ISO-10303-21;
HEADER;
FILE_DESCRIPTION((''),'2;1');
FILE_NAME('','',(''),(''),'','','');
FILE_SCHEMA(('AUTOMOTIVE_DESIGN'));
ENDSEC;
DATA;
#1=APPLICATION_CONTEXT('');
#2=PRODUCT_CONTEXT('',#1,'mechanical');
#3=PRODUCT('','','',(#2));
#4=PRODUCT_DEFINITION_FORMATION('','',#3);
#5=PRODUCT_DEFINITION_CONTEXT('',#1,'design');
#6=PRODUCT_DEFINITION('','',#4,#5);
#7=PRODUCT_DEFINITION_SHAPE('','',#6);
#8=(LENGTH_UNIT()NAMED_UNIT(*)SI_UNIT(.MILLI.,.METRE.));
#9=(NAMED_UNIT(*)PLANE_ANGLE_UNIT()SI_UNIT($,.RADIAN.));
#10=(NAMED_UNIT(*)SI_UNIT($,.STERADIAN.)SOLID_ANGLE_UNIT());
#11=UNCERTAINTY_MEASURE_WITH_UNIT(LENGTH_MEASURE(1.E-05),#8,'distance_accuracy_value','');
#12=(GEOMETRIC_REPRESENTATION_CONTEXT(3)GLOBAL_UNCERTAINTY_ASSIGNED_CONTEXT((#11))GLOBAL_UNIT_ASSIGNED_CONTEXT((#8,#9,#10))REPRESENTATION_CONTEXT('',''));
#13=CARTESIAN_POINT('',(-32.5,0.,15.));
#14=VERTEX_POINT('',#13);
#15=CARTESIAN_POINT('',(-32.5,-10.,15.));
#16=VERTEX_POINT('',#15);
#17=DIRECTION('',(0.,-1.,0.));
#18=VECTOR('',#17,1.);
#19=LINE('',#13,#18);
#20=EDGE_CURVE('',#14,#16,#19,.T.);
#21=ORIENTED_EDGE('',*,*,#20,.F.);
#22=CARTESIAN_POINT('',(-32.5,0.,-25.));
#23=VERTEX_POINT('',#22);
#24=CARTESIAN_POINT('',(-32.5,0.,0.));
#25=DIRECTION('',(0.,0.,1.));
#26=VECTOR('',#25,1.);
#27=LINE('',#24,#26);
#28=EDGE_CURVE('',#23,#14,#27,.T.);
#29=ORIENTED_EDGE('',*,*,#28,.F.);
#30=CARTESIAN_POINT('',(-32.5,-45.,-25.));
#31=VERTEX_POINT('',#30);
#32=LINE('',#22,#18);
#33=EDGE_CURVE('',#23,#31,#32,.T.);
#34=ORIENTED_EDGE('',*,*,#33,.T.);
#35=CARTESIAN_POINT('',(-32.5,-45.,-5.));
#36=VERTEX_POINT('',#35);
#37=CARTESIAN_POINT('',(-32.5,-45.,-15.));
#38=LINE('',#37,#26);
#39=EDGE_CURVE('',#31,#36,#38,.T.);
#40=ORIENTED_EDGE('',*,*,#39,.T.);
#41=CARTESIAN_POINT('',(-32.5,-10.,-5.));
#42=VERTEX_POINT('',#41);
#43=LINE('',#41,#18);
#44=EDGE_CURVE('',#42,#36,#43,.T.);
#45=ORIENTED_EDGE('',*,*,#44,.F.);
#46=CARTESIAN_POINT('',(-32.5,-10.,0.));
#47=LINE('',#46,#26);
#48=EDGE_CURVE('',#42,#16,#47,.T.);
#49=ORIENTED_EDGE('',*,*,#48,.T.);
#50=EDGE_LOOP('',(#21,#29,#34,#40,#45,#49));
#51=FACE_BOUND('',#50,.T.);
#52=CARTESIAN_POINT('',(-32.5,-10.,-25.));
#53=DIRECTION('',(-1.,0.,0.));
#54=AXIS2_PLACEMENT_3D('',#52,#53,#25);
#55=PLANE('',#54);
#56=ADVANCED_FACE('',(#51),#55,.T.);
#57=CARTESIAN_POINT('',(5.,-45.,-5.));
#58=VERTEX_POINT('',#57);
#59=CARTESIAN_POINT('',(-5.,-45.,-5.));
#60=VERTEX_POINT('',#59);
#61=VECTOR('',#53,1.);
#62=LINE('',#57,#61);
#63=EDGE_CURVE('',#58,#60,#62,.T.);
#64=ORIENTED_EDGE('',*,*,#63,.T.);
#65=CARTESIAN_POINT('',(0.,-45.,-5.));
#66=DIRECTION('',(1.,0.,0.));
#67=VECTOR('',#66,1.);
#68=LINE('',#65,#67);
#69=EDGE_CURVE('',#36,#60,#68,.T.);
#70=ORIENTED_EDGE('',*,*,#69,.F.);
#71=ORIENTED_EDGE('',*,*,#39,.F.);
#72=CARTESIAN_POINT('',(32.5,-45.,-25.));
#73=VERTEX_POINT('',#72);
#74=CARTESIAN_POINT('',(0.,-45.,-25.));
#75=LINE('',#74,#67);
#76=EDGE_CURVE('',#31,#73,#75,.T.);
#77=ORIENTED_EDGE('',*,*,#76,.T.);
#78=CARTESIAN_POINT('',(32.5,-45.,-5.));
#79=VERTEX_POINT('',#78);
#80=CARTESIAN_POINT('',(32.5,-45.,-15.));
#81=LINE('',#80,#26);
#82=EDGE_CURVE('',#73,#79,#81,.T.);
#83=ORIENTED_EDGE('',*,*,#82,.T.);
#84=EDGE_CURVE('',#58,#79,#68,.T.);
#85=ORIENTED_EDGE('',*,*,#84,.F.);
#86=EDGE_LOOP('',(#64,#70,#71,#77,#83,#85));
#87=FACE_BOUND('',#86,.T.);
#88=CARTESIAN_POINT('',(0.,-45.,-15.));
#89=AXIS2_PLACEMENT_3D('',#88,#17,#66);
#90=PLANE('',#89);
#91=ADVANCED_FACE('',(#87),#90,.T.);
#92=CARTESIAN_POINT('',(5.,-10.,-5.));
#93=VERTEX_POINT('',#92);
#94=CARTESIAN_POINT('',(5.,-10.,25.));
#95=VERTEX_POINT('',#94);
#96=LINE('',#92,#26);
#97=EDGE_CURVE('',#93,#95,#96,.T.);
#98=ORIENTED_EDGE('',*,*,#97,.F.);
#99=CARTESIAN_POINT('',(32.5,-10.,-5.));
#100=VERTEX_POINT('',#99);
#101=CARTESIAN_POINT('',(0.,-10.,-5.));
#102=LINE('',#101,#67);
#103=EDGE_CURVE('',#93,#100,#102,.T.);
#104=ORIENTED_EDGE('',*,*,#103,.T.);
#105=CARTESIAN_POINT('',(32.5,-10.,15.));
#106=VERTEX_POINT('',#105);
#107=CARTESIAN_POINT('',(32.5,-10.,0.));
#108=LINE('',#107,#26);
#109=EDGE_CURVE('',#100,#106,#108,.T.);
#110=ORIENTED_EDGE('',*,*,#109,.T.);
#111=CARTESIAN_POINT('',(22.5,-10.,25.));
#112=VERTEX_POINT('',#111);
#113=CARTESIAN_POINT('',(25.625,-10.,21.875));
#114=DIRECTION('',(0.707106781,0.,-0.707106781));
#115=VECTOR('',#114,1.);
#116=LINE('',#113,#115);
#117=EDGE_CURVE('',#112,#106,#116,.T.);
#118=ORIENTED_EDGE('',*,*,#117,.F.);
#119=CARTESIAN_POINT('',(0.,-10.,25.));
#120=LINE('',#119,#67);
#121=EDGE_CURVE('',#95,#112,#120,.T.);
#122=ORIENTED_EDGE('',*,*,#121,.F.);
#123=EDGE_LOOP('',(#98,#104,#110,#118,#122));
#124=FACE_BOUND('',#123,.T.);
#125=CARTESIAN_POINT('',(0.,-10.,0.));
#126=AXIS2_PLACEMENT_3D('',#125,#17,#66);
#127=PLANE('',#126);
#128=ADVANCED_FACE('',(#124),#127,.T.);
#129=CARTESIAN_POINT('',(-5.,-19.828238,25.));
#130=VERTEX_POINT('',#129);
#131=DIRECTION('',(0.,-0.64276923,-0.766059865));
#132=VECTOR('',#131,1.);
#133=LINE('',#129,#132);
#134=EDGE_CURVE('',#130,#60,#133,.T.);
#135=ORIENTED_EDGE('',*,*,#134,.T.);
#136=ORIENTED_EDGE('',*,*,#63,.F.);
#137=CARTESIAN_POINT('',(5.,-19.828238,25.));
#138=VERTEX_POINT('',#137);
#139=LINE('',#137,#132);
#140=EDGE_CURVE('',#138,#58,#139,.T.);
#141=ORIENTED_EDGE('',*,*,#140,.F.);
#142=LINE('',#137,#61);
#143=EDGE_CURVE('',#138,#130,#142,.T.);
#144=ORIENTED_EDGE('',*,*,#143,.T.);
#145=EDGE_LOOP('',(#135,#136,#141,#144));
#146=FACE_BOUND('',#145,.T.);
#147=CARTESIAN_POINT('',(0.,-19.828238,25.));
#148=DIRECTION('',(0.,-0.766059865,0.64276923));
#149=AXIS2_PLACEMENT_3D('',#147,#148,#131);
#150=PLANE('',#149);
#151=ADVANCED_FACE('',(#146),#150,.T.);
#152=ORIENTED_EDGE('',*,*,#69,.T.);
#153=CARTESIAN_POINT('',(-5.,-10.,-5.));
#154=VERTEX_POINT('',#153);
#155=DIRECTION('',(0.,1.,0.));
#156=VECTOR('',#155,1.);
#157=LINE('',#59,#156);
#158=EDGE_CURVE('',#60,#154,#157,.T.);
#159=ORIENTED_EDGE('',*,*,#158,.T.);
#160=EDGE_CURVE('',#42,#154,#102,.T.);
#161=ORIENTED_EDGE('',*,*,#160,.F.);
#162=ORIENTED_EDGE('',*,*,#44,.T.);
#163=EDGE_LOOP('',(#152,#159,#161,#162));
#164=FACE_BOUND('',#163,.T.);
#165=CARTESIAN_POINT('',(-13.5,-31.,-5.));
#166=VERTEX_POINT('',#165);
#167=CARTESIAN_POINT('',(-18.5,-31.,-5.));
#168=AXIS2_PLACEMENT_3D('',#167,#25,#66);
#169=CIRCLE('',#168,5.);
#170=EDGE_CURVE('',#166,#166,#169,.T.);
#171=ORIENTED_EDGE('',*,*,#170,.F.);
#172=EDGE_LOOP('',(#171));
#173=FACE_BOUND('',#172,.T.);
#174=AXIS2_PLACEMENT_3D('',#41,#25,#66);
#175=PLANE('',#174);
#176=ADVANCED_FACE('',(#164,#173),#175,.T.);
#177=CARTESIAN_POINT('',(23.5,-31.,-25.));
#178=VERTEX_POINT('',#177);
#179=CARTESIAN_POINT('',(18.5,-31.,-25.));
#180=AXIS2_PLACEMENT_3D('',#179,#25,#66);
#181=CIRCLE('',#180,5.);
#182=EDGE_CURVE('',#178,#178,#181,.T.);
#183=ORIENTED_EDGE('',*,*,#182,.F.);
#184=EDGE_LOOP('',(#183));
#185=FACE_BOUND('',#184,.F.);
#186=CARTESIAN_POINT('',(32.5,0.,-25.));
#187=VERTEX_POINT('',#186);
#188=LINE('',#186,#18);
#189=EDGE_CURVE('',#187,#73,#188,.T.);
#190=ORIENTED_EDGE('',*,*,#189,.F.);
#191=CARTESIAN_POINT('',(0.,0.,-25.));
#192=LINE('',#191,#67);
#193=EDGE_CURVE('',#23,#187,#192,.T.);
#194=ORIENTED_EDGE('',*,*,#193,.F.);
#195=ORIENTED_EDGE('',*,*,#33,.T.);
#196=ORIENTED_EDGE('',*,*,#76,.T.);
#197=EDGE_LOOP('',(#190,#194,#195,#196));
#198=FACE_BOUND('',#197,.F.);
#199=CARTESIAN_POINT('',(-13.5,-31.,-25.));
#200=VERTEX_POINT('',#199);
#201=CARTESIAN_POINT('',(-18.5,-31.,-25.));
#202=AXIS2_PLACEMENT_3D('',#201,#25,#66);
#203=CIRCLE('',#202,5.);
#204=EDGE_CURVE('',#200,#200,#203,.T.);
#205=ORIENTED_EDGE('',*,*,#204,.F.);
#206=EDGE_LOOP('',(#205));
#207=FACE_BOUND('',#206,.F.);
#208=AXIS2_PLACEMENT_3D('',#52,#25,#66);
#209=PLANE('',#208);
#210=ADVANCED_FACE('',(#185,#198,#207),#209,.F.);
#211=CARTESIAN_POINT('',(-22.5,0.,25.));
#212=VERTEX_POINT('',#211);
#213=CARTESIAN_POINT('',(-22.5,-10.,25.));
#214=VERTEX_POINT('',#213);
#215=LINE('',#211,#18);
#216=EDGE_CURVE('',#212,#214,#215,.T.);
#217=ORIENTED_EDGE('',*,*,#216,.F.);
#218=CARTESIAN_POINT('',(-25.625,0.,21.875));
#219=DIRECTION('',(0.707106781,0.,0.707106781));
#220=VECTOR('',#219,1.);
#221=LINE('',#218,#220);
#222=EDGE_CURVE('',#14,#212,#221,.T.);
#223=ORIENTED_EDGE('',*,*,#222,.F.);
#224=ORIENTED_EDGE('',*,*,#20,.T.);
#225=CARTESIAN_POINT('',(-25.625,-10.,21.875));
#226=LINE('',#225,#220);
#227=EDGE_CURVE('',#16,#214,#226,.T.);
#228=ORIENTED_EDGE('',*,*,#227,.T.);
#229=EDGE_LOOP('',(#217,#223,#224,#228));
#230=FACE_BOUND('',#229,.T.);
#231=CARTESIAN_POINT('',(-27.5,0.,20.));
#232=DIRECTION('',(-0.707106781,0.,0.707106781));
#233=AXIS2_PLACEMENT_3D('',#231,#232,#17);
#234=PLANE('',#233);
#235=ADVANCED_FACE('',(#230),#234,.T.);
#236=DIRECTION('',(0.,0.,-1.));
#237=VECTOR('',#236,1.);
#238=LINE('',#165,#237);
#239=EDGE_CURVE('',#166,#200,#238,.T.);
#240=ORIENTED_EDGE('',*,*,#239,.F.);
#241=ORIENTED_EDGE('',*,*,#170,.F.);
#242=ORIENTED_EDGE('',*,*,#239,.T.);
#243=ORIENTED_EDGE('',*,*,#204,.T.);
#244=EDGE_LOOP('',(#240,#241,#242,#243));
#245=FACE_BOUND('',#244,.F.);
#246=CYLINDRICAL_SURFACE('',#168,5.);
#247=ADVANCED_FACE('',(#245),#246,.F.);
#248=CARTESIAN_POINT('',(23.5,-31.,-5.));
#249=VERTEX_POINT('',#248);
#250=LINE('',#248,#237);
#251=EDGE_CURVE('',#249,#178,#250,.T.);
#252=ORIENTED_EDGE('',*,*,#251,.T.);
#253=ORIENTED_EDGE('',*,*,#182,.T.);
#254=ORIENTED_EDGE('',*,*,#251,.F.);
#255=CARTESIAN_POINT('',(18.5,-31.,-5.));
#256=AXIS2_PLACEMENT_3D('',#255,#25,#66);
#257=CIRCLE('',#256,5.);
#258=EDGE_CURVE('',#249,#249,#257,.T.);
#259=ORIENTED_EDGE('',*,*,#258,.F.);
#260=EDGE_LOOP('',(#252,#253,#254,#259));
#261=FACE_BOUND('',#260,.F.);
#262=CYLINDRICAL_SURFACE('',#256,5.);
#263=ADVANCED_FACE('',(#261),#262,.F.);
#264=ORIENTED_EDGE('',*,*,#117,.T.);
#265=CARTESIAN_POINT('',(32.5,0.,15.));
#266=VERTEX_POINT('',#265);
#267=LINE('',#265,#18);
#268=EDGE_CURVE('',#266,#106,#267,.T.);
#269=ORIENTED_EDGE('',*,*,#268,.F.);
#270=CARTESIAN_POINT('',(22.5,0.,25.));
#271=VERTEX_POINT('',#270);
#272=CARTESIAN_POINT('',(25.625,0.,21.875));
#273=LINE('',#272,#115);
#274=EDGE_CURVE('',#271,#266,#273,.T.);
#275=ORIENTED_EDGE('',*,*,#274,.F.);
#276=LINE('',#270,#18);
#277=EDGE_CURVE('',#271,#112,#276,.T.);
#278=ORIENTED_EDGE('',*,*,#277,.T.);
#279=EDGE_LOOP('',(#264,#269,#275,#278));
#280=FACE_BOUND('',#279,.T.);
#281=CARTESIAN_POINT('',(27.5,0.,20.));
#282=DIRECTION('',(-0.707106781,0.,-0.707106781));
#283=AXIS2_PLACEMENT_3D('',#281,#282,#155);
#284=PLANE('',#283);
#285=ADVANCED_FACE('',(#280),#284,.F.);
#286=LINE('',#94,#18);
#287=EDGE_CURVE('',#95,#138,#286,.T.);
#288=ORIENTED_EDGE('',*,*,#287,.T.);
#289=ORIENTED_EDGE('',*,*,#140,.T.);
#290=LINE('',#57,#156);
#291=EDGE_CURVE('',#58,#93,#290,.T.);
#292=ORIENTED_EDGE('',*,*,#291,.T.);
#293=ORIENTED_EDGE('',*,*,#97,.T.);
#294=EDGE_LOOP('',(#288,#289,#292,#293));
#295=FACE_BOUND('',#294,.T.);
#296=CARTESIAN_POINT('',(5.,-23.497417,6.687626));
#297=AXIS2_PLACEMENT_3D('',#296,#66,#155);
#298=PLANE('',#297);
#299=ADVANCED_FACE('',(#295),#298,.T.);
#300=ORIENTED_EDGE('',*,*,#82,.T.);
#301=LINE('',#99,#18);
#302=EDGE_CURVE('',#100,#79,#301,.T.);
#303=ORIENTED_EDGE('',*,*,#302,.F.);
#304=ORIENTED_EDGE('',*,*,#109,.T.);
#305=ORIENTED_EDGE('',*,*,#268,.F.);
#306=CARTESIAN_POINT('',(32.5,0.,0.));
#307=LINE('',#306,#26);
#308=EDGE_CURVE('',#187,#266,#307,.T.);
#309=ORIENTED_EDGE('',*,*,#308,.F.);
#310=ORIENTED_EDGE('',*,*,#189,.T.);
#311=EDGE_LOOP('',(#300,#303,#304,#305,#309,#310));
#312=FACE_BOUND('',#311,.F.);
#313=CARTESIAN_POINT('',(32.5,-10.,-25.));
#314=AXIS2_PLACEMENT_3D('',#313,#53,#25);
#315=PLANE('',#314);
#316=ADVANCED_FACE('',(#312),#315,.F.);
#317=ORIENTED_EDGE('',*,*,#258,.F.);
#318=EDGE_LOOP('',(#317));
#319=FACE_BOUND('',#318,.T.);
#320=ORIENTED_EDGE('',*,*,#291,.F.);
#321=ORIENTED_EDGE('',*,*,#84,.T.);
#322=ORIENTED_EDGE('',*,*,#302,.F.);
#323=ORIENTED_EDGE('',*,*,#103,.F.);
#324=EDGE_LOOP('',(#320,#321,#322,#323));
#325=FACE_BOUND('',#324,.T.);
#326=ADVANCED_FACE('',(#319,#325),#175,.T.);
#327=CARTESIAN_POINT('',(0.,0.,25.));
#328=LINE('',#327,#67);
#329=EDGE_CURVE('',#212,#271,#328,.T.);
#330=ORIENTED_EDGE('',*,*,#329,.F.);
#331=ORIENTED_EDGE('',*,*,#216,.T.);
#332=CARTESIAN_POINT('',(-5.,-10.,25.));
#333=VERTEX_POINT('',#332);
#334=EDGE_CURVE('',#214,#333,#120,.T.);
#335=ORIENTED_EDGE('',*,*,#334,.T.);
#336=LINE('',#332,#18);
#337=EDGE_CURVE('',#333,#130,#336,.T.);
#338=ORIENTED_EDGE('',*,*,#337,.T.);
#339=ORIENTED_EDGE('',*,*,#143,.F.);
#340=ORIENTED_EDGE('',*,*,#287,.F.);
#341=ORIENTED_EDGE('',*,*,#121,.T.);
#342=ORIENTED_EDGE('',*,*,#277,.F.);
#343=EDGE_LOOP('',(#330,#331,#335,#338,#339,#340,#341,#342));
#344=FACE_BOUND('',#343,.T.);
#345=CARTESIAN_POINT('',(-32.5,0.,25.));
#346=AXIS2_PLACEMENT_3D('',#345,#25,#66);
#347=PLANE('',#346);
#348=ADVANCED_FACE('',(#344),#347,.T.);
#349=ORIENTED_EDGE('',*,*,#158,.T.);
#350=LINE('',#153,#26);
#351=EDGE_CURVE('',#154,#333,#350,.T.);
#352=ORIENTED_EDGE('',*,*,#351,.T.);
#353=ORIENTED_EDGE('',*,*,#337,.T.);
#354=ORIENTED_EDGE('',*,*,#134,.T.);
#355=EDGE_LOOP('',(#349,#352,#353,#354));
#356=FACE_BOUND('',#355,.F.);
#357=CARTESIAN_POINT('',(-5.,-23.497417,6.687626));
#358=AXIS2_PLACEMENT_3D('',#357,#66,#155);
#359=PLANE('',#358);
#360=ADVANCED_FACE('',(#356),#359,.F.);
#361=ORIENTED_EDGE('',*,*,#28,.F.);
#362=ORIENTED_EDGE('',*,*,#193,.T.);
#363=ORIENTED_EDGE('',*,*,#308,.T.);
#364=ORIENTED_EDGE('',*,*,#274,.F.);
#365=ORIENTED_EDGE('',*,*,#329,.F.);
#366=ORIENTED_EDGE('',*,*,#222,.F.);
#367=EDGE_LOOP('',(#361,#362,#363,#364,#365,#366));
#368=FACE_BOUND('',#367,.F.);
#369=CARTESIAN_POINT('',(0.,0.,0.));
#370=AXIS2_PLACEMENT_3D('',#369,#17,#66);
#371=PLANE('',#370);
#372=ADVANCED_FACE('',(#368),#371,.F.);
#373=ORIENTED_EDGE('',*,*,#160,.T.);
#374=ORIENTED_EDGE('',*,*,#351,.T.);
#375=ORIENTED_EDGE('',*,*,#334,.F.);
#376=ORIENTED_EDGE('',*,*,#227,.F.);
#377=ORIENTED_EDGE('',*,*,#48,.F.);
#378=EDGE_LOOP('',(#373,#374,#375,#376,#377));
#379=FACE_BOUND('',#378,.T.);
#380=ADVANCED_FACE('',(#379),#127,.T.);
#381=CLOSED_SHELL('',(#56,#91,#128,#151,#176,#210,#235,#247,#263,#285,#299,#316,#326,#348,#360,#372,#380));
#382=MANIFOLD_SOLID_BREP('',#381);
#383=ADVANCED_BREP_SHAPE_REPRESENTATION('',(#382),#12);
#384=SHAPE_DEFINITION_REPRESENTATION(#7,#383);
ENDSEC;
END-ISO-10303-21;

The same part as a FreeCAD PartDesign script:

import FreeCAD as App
import Part
import Sketcher
Q = App.Units.Quantity


def edges_at(feature, points):
    """Names of the edges that pass closest to the given points."""
    edges = feature.Shape.Edges
    near = lambda p: min(range(len(edges)), key=lambda i: edges[i].distToShape(Part.Vertex(*p))[0])
    return sorted({f"Edge{near(p) + 1}" for p in points})


def add_polygon(sketch, points):
    """Adds a closed chain of lines whose ends are joined by coincident constraints."""
    first, n = sketch.GeometryCount, len(points)
    for a, b in zip(points, points[1:] + points[:1]):
        sketch.addGeometry(Part.LineSegment(App.Vector(*a, 0), App.Vector(*b, 0)), False)
    for i in range(n):
        sketch.addConstraint(Sketcher.Constraint("Coincident", first + i, 2, first + (i + 1) % n, 1))

doc = App.newDocument("Part")
body = doc.addObject("PartDesign::Body", "Body")

# Sketch on XZ plane
sketch1 = doc.addObject("Sketcher::SketchObject", "Sketch")
body.addObject(sketch1)
sketch1.AttachmentSupport = (doc.XZ_Plane, [""])
sketch1.MapMode = "FlatFace"
add_polygon(sketch1, [(-32.5, 25), (-32.5, -25), (32.5, -25), (32.5, 25)])  # lines 0-3
sketch1.addConstraint([
    Sketcher.Constraint("Vertical", 0),
    Sketcher.Constraint("Horizontal", 1),
    Sketcher.Constraint("Vertical", 2),
    Sketcher.Constraint("Horizontal", 3),
    Sketcher.Constraint("Symmetric", 0, 2, 2, 2, -1, 1),
    Sketcher.Constraint("DistanceX", 1, 1, 1, 2, Q("65 mm")),
    Sketcher.Constraint("DistanceY", 0, 2, 0, 1, Q("50 mm")),
])
pad1 = doc.addObject("PartDesign::Pad", "Pad")
body.addObject(pad1)
pad1.Profile = sketch1
pad1.Length = 10

# Sketch on XZ plane
sketch2 = doc.addObject("Sketcher::SketchObject", "Sketch001")
body.addObject(sketch2)
sketch2.AttachmentSupport = (doc.XZ_Plane, [""])
sketch2.MapMode = "FlatFace"
sketch2.AttachmentOffset = App.Placement(App.Vector(0, 0, 10), App.Rotation())
add_polygon(sketch2, [(-32.5, -5), (-32.5, -25), (32.5, -25), (32.5, -5)])  # lines 0-3
sketch2.addConstraint([
    Sketcher.Constraint("Vertical", 0),
    Sketcher.Constraint("Horizontal", 1),
    Sketcher.Constraint("Vertical", 2),
    Sketcher.Constraint("Horizontal", 3),
    Sketcher.Constraint("DistanceX", 1, 1, 1, 2, Q("65 mm")),
    Sketcher.Constraint("DistanceY", 0, 2, 0, 1, Q("20 mm")),
    Sketcher.Constraint("DistanceY", 0, 2, -1, 1, Q("25 mm")),
    Sketcher.Constraint("DistanceX", 0, 2, -1, 1, Q("32.5 mm")),
])
pad2 = doc.addObject("PartDesign::Pad", "Pad001")
body.addObject(pad2)
pad2.Profile = sketch2
pad2.Length = 35

# Sketch on YZ plane
sketch3 = doc.addObject("Sketcher::SketchObject", "Sketch002")
body.addObject(sketch3)
sketch3.AttachmentSupport = (doc.YZ_Plane, [""])
sketch3.MapMode = "FlatFace"
add_polygon(sketch3, [(-45, -5), (-10, -5), (-10, 25), (-19.828238, 25)])  # lines 0-3
sketch3.addConstraint([
    Sketcher.Constraint("Horizontal", 0),
    Sketcher.Constraint("Vertical", 1),
    Sketcher.Constraint("Horizontal", 2),
    Sketcher.Constraint("DistanceX", 0, 1, 0, 2, Q("35 mm")),
    Sketcher.Constraint("DistanceY", 1, 1, 1, 2, Q("30 mm")),
    Sketcher.Constraint("DistanceX", 0, 2, -1, 1, Q("10 mm")),
    Sketcher.Constraint("DistanceY", 0, 2, -1, 1, Q("5 mm")),
    Sketcher.Constraint("Distance", 3, Q("39.16143 mm")),
])
pad3 = doc.addObject("PartDesign::Pad", "Pad002")
body.addObject(pad3)
pad3.Profile = sketch3
pad3.Length = 10
pad3.Midplane = True
doc.recompute()

chamfer = doc.addObject("PartDesign::Chamfer", "Chamfer")
body.addObject(chamfer)
chamfer.Base = (pad3, edges_at(pad3, [(-32.5, -5, 25), (32.5, -5, 25)]))
chamfer.Size = 10

# Sketch on XY plane
sketch4 = doc.addObject("Sketcher::SketchObject", "Sketch003")
body.addObject(sketch4)
sketch4.AttachmentSupport = (doc.XY_Plane, [""])
sketch4.MapMode = "FlatFace"
sketch4.AttachmentOffset = App.Placement(App.Vector(0, 0, -5), App.Rotation())
sketch4.addGeometry([
    Part.Circle(App.Vector(-18.5, -31, 0), App.Vector(0, 0, 1), 5),
    Part.Circle(App.Vector(18.5, -31, 0), App.Vector(0, 0, 1), 5),
], False)
sketch4.addConstraint([
    Sketcher.Constraint("Equal", 0, 1),
    Sketcher.Constraint("Symmetric", 0, 3, 1, 3, -2),
    Sketcher.Constraint("Diameter", 0, Q("10 mm")),
    Sketcher.Constraint("DistanceY", 0, 3, -1, 1, Q("31 mm")),
    Sketcher.Constraint("DistanceX", 0, 3, 1, 3, Q("37 mm")),
])
pocket1 = doc.addObject("PartDesign::Pocket", "Pocket")
body.addObject(pocket1)
pocket1.Profile = sketch4
pocket1.Type = "ThroughAll"

doc.recompute()
